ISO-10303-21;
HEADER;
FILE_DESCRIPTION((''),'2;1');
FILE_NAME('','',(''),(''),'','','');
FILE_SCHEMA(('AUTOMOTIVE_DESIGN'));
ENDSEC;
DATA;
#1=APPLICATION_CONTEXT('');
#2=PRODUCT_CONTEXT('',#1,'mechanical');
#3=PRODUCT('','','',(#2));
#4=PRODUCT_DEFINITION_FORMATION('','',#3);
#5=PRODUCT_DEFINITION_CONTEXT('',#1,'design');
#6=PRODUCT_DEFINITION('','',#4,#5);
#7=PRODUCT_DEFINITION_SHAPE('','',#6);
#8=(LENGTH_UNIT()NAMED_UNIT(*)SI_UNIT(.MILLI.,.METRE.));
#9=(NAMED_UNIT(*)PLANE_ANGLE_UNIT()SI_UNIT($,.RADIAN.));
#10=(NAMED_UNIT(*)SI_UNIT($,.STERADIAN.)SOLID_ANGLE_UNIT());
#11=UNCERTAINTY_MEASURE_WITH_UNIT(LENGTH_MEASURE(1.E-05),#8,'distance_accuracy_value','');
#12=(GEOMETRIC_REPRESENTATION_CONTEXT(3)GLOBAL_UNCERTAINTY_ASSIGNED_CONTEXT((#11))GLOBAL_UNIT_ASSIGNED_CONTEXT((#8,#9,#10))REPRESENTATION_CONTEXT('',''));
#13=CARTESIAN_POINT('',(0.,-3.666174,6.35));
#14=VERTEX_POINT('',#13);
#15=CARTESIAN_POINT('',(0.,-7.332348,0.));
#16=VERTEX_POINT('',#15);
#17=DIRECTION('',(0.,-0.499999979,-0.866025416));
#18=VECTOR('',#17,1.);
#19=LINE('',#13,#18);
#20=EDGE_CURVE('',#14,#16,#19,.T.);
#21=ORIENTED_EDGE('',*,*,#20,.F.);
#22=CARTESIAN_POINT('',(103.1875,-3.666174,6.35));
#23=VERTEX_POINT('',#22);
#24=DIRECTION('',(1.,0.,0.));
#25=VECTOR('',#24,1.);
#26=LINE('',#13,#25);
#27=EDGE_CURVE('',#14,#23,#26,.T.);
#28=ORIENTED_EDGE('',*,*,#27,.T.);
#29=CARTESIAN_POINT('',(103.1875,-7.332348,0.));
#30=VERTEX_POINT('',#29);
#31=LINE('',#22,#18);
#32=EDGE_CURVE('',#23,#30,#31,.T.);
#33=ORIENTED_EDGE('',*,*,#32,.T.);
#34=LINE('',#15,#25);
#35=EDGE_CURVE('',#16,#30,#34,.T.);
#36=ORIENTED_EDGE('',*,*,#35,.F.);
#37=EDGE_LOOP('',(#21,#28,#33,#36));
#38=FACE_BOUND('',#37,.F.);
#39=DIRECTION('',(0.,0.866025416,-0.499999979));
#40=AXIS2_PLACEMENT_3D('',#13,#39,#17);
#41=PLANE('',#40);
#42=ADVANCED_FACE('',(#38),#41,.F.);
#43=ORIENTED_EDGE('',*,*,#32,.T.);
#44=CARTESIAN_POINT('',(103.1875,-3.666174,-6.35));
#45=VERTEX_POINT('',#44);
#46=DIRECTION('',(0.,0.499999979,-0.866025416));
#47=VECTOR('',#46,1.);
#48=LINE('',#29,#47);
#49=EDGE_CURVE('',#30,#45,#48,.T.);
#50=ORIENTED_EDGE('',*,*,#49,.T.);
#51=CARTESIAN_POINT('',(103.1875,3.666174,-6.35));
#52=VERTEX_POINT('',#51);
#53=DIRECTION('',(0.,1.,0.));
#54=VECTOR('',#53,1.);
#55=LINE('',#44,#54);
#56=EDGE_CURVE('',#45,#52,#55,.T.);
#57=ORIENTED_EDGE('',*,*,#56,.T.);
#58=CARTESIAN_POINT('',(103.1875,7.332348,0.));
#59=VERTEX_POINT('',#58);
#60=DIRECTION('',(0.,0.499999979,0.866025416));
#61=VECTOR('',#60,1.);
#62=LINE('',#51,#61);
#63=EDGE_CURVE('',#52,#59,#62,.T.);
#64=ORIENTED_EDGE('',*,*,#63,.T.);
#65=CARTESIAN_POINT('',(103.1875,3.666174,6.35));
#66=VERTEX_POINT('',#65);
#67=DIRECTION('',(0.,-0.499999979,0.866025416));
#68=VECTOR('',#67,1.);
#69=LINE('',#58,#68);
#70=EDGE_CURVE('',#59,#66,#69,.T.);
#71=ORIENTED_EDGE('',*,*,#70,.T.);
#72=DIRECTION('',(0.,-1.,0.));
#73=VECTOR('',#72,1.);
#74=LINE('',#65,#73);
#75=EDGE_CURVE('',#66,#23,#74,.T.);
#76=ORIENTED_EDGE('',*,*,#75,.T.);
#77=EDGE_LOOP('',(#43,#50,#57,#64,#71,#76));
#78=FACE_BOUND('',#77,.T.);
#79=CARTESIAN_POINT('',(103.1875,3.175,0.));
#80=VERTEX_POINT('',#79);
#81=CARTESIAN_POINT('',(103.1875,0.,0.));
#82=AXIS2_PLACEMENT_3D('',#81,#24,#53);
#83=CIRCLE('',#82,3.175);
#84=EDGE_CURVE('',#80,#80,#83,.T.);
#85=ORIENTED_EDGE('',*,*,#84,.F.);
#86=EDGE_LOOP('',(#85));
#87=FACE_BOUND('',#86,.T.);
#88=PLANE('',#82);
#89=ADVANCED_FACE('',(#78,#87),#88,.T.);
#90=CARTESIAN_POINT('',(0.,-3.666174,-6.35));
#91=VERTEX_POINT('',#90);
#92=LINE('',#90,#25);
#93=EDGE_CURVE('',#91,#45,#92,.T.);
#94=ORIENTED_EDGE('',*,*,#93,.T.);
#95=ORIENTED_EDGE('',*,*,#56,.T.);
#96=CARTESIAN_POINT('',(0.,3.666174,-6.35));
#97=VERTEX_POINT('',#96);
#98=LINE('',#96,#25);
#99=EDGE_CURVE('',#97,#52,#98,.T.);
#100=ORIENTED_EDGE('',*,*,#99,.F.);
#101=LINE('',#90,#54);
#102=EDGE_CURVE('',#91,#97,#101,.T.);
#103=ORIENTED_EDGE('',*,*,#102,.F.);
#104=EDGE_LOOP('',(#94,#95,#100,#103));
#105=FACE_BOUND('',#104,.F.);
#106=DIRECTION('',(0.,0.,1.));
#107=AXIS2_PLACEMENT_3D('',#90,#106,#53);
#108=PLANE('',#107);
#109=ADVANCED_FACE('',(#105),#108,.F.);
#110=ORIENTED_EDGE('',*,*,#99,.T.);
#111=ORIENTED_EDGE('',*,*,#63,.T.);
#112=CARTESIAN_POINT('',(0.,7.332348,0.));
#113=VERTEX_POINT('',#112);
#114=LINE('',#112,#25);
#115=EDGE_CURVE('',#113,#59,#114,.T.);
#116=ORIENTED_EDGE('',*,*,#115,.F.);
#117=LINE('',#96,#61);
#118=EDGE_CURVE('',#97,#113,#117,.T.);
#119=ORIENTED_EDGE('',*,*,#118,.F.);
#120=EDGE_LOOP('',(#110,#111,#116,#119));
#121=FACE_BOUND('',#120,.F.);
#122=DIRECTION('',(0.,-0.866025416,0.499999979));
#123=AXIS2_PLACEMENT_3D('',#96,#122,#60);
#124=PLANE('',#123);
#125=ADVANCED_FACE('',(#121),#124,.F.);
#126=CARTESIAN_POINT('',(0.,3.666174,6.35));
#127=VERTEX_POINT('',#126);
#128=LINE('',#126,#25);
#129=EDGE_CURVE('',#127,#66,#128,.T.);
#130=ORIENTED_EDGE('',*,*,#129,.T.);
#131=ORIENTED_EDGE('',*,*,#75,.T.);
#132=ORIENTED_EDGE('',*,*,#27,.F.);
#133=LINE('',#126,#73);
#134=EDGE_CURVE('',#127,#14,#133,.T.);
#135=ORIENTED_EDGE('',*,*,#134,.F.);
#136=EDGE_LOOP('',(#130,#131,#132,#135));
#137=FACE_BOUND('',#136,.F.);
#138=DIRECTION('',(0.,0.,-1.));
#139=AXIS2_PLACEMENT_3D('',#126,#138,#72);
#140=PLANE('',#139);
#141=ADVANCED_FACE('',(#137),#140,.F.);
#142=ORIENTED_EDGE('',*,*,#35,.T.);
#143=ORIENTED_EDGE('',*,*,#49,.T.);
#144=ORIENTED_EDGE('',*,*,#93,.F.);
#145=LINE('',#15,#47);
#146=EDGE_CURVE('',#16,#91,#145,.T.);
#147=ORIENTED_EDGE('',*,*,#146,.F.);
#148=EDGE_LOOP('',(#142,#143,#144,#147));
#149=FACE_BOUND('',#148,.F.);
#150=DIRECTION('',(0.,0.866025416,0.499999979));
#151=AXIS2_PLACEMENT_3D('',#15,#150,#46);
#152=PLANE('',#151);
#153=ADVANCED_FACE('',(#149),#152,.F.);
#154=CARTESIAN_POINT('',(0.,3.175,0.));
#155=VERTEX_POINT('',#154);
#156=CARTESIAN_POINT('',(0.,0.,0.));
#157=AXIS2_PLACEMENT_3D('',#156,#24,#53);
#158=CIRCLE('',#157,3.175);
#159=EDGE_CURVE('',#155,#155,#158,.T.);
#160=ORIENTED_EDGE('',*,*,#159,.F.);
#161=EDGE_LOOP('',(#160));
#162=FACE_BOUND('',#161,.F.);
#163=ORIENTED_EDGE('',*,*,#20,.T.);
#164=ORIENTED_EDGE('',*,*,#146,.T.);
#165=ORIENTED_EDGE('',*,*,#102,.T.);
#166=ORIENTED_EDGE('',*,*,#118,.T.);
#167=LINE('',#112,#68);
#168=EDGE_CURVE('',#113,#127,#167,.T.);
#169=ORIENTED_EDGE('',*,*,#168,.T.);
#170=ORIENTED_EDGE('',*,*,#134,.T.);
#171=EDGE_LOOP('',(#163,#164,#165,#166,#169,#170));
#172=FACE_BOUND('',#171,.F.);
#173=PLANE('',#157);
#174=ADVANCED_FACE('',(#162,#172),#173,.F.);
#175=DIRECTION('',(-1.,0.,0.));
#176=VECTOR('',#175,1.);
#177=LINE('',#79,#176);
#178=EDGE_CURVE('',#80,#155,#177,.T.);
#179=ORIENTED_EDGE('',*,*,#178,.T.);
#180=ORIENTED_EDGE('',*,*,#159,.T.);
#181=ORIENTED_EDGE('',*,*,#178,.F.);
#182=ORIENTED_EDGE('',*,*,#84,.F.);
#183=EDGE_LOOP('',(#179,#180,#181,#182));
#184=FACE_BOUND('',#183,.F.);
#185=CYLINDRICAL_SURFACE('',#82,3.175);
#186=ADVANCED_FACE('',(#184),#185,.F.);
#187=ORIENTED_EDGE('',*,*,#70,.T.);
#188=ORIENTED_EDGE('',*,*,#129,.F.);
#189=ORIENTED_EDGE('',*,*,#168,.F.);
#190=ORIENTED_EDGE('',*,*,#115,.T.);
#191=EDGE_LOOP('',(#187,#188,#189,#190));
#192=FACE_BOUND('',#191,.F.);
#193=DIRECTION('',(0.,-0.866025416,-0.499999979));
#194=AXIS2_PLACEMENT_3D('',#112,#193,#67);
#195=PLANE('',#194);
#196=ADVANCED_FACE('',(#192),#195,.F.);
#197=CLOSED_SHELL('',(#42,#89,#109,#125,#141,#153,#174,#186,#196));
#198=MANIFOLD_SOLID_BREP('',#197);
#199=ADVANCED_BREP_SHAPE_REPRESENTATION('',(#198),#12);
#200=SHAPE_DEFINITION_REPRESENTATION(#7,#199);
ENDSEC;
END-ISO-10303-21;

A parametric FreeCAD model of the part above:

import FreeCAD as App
import Part
import Sketcher
from FreeCAD import Vector
Q = App.Units.Quantity


def add_polygon(sketch, points):
    """Adds a closed chain of lines whose ends are joined by coincident constraints."""
    first, n = sketch.GeometryCount, len(points)
    for a, b in zip(points, points[1:] + points[:1]):
        sketch.addGeometry(Part.LineSegment(App.Vector(*a, 0), App.Vector(*b, 0)), False)
    for i in range(n):
        sketch.addConstraint(Sketcher.Constraint("Coincident", first + i, 2, first + (i + 1) % n, 1))

doc = App.newDocument("Part")
body = doc.addObject("PartDesign::Body", "Body")

# Sketch on YZ plane
sketch1 = body.newObject("Sketcher::SketchObject", "Sketch")
sketch1.AttachmentSupport = (doc.getObject("YZ_Plane"), [""])
sketch1.MapMode = "FlatFace"
add_polygon(sketch1, [(4, 6), (-4, 6), (-7, 0), (-4, -6), (4, -6), (7, 0)])  # lines 0-5
sketch1.addConstraint([
    Sketcher.Constraint("Horizontal", 0),
    Sketcher.Constraint("Horizontal", 3),
    Sketcher.Constraint("Symmetric", 0, 2, 3, 2, -1, 1),
    Sketcher.Constraint("Symmetric", 1, 2, 4, 2, -1, 1),
    Sketcher.Constraint("PointOnObject", 1, 2, -1),
    Sketcher.Constraint("Parallel", 2, 5),
    Sketcher.Constraint("Vertical", 0, 2, 2, 2),
    Sketcher.Constraint("Angle", 1, Q("-119.999999 deg")),
    Sketcher.Constraint("DistanceY", 2, 2, 0, 2, Q("0.5 in")),
    Sketcher.Constraint("DistanceX", 0, 2, 0, 1, Q("7.332348 mm")),
])
pad1 = body.newObject("PartDesign::Pad", "Pad")
pad1.Profile = sketch1
pad1.Length = Q("4.0625 in")

# Sketch on YZ plane
sketch2 = body.newObject("Sketcher::SketchObject", "Sketch001")
sketch2.AttachmentSupport = (doc.getObject("YZ_Plane"), [""])
sketch2.MapMode = "FlatFace"
sketch2.AttachmentOffset = App.Placement(Vector(0, 0, 4.0625 * 25.4), App.Rotation())
sketch2.addGeometry(Part.Circle(Vector(0, 0, 0), Vector(0, 0, 1), 3.2), False)
sketch2.addConstraint([
    Sketcher.Constraint("Coincident", 0, 3, -1, 1),
    Sketcher.Constraint("Diameter", 0, Q("0.25 in")),
])
pocket1 = body.newObject("PartDesign::Pocket", "Pocket")
pocket1.Profile = sketch2
pocket1.Type = "ThroughAll"

doc.recompute()
